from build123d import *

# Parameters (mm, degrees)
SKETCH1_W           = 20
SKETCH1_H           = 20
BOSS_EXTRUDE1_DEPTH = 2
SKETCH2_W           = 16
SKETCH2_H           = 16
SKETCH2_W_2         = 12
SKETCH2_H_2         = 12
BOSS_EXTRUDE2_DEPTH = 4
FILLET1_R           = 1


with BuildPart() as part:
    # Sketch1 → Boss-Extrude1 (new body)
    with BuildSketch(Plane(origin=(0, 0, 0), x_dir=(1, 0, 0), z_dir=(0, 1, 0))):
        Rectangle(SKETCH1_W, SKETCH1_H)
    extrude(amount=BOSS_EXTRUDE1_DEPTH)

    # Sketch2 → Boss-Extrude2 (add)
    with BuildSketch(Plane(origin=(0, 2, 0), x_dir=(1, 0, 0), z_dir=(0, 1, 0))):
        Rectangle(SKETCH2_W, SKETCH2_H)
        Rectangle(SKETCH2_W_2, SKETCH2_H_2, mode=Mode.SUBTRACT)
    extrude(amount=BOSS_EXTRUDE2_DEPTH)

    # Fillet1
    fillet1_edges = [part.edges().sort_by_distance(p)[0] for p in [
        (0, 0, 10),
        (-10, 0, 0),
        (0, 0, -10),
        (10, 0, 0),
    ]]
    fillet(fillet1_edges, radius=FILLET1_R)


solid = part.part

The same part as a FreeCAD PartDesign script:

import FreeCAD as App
import Part
import Sketcher

V = App.Vector


def edges_at(feature, points):
    """Names of the edges that pass closest to the given points."""
    edges = feature.Shape.Edges
    near = lambda p: min(range(len(edges)), key=lambda i: edges[i].distToShape(Part.Vertex(*p))[0])
    return sorted({f"Edge{near(p) + 1}" for p in points})

doc = App.newDocument("Part")
body = doc.addObject("PartDesign::Body", "Body")

# Sketch on XZ plane
sketch1 = body.newObject("Sketcher::SketchObject", "Sketch")
sketch1.AttachmentSupport = (doc.getObject("XZ_Plane"), [""])
sketch1.MapMode = "FlatFace"
sketch1.addGeometry(Part.LineSegment(V(-10, -10, 0), V(-10, 10, 0)), False)
sketch1.addGeometry(Part.LineSegment(V(-10, 10, 0), V(10, 10, 0)), False)
sketch1.addGeometry(Part.LineSegment(V(10, 10, 0), V(10, -10, 0)), False)
sketch1.addGeometry(Part.LineSegment(V(10, -10, 0), V(-10, -10, 0)), False)
sketch1.addConstraint(Sketcher.Constraint("Coincident", 0, 2, 1, 1))
sketch1.addConstraint(Sketcher.Constraint("Coincident", 1, 2, 2, 1))
sketch1.addConstraint(Sketcher.Constraint("Coincident", 2, 2, 3, 1))
sketch1.addConstraint(Sketcher.Constraint("Coincident", 3, 2, 0, 1))
sketch1.addConstraint(Sketcher.Constraint("Vertical", 0))
sketch1.addConstraint(Sketcher.Constraint("Horizontal", 1))
sketch1.addConstraint(Sketcher.Constraint("Vertical", 2))
sketch1.addConstraint(Sketcher.Constraint("Horizontal", 3))
sketch1.addConstraint(Sketcher.Constraint("Symmetric", 0, 2, 2, 2, -1, 1))
sketch1.addConstraint(Sketcher.Constraint("Equal", 3, 0))
sketch1.addConstraint(Sketcher.Constraint("DistanceX", 1, 1, 1, 2, 20.0))
pad1 = body.newObject("PartDesign::Pad", "Pad")
pad1.Profile = sketch1
pad1.Length = 2
pad1.Reversed = True

# Sketch on XZ plane
sketch2 = body.newObject("Sketcher::SketchObject", "Sketch001")
sketch2.AttachmentSupport = (doc.getObject("XZ_Plane"), [""])
sketch2.MapMode = "FlatFace"
sketch2.AttachmentOffset = App.Placement(V(0, 0, -2), App.Rotation())
sketch2.addGeometry(Part.LineSegment(V(-8, -8, 0), V(-8, 8, 0)), False)
sketch2.addGeometry(Part.LineSegment(V(-8, 8, 0), V(8, 8, 0)), False)
sketch2.addGeometry(Part.LineSegment(V(8, 8, 0), V(8, -8, 0)), False)
sketch2.addGeometry(Part.LineSegment(V(8, -8, 0), V(-8, -8, 0)), False)
sketch2.addGeometry(Part.LineSegment(V(6, 6, 0), V(-6, 6, 0)), False)
sketch2.addGeometry(Part.LineSegment(V(-6, 6, 0), V(-6, -6, 0)), False)
sketch2.addGeometry(Part.LineSegment(V(-6, -6, 0), V(6, -6, 0)), False)
sketch2.addGeometry(Part.LineSegment(V(6, -6, 0), V(6, 6, 0)), False)
sketch2.addConstraint(Sketcher.Constraint("Coincident", 0, 2, 1, 1))
sketch2.addConstraint(Sketcher.Constraint("Coincident", 1, 2, 2, 1))
sketch2.addConstraint(Sketcher.Constraint("Coincident", 2, 2, 3, 1))
sketch2.addConstraint(Sketcher.Constraint("Coincident", 3, 2, 0, 1))
sketch2.addConstraint(Sketcher.Constraint("Coincident", 4, 2, 5, 1))
sketch2.addConstraint(Sketcher.Constraint("Coincident", 5, 2, 6, 1))
sketch2.addConstraint(Sketcher.Constraint("Coincident", 6, 2, 7, 1))
sketch2.addConstraint(Sketcher.Constraint("Coincident", 7, 2, 4, 1))
sketch2.addConstraint(Sketcher.Constraint("Vertical", 0))
sketch2.addConstraint(Sketcher.Constraint("Horizontal", 1))
sketch2.addConstraint(Sketcher.Constraint("Vertical", 2))
sketch2.addConstraint(Sketcher.Constraint("Horizontal", 3))
sketch2.addConstraint(Sketcher.Constraint("Horizontal", 4))
sketch2.addConstraint(Sketcher.Constraint("Vertical", 5))
sketch2.addConstraint(Sketcher.Constraint("Horizontal", 6))
sketch2.addConstraint(Sketcher.Constraint("Vertical", 7))
sketch2.addConstraint(Sketcher.Constraint("Symmetric", 0, 2, 2, 2, -1, 1))
sketch2.addConstraint(Sketcher.Constraint("Symmetric", 4, 2, 6, 2, -1, 1))
sketch2.addConstraint(Sketcher.Constraint("Equal", 3, 0))
sketch2.addConstraint(Sketcher.Constraint("Equal", 6, 5))
sketch2.addConstraint(Sketcher.Constraint("DistanceX", 1, 1, 1, 2, 16.0))
sketch2.addConstraint(Sketcher.Constraint("DistanceX", 4, 2, 4, 1, 12.0))
pad2 = body.newObject("PartDesign::Pad", "Pad001")
pad2.Profile = sketch2
pad2.Length = 4
pad2.Reversed = True
doc.recompute()

fillet = body.newObject("PartDesign::Fillet", "Fillet")
fillet.Base = (pad2, edges_at(pad2, [
    (0, 0, 10),
    (-10, 0, 0),
    (0, 0, -10),
    (10, 0, 0),
]))
fillet.Radius = 1

doc.recompute()
